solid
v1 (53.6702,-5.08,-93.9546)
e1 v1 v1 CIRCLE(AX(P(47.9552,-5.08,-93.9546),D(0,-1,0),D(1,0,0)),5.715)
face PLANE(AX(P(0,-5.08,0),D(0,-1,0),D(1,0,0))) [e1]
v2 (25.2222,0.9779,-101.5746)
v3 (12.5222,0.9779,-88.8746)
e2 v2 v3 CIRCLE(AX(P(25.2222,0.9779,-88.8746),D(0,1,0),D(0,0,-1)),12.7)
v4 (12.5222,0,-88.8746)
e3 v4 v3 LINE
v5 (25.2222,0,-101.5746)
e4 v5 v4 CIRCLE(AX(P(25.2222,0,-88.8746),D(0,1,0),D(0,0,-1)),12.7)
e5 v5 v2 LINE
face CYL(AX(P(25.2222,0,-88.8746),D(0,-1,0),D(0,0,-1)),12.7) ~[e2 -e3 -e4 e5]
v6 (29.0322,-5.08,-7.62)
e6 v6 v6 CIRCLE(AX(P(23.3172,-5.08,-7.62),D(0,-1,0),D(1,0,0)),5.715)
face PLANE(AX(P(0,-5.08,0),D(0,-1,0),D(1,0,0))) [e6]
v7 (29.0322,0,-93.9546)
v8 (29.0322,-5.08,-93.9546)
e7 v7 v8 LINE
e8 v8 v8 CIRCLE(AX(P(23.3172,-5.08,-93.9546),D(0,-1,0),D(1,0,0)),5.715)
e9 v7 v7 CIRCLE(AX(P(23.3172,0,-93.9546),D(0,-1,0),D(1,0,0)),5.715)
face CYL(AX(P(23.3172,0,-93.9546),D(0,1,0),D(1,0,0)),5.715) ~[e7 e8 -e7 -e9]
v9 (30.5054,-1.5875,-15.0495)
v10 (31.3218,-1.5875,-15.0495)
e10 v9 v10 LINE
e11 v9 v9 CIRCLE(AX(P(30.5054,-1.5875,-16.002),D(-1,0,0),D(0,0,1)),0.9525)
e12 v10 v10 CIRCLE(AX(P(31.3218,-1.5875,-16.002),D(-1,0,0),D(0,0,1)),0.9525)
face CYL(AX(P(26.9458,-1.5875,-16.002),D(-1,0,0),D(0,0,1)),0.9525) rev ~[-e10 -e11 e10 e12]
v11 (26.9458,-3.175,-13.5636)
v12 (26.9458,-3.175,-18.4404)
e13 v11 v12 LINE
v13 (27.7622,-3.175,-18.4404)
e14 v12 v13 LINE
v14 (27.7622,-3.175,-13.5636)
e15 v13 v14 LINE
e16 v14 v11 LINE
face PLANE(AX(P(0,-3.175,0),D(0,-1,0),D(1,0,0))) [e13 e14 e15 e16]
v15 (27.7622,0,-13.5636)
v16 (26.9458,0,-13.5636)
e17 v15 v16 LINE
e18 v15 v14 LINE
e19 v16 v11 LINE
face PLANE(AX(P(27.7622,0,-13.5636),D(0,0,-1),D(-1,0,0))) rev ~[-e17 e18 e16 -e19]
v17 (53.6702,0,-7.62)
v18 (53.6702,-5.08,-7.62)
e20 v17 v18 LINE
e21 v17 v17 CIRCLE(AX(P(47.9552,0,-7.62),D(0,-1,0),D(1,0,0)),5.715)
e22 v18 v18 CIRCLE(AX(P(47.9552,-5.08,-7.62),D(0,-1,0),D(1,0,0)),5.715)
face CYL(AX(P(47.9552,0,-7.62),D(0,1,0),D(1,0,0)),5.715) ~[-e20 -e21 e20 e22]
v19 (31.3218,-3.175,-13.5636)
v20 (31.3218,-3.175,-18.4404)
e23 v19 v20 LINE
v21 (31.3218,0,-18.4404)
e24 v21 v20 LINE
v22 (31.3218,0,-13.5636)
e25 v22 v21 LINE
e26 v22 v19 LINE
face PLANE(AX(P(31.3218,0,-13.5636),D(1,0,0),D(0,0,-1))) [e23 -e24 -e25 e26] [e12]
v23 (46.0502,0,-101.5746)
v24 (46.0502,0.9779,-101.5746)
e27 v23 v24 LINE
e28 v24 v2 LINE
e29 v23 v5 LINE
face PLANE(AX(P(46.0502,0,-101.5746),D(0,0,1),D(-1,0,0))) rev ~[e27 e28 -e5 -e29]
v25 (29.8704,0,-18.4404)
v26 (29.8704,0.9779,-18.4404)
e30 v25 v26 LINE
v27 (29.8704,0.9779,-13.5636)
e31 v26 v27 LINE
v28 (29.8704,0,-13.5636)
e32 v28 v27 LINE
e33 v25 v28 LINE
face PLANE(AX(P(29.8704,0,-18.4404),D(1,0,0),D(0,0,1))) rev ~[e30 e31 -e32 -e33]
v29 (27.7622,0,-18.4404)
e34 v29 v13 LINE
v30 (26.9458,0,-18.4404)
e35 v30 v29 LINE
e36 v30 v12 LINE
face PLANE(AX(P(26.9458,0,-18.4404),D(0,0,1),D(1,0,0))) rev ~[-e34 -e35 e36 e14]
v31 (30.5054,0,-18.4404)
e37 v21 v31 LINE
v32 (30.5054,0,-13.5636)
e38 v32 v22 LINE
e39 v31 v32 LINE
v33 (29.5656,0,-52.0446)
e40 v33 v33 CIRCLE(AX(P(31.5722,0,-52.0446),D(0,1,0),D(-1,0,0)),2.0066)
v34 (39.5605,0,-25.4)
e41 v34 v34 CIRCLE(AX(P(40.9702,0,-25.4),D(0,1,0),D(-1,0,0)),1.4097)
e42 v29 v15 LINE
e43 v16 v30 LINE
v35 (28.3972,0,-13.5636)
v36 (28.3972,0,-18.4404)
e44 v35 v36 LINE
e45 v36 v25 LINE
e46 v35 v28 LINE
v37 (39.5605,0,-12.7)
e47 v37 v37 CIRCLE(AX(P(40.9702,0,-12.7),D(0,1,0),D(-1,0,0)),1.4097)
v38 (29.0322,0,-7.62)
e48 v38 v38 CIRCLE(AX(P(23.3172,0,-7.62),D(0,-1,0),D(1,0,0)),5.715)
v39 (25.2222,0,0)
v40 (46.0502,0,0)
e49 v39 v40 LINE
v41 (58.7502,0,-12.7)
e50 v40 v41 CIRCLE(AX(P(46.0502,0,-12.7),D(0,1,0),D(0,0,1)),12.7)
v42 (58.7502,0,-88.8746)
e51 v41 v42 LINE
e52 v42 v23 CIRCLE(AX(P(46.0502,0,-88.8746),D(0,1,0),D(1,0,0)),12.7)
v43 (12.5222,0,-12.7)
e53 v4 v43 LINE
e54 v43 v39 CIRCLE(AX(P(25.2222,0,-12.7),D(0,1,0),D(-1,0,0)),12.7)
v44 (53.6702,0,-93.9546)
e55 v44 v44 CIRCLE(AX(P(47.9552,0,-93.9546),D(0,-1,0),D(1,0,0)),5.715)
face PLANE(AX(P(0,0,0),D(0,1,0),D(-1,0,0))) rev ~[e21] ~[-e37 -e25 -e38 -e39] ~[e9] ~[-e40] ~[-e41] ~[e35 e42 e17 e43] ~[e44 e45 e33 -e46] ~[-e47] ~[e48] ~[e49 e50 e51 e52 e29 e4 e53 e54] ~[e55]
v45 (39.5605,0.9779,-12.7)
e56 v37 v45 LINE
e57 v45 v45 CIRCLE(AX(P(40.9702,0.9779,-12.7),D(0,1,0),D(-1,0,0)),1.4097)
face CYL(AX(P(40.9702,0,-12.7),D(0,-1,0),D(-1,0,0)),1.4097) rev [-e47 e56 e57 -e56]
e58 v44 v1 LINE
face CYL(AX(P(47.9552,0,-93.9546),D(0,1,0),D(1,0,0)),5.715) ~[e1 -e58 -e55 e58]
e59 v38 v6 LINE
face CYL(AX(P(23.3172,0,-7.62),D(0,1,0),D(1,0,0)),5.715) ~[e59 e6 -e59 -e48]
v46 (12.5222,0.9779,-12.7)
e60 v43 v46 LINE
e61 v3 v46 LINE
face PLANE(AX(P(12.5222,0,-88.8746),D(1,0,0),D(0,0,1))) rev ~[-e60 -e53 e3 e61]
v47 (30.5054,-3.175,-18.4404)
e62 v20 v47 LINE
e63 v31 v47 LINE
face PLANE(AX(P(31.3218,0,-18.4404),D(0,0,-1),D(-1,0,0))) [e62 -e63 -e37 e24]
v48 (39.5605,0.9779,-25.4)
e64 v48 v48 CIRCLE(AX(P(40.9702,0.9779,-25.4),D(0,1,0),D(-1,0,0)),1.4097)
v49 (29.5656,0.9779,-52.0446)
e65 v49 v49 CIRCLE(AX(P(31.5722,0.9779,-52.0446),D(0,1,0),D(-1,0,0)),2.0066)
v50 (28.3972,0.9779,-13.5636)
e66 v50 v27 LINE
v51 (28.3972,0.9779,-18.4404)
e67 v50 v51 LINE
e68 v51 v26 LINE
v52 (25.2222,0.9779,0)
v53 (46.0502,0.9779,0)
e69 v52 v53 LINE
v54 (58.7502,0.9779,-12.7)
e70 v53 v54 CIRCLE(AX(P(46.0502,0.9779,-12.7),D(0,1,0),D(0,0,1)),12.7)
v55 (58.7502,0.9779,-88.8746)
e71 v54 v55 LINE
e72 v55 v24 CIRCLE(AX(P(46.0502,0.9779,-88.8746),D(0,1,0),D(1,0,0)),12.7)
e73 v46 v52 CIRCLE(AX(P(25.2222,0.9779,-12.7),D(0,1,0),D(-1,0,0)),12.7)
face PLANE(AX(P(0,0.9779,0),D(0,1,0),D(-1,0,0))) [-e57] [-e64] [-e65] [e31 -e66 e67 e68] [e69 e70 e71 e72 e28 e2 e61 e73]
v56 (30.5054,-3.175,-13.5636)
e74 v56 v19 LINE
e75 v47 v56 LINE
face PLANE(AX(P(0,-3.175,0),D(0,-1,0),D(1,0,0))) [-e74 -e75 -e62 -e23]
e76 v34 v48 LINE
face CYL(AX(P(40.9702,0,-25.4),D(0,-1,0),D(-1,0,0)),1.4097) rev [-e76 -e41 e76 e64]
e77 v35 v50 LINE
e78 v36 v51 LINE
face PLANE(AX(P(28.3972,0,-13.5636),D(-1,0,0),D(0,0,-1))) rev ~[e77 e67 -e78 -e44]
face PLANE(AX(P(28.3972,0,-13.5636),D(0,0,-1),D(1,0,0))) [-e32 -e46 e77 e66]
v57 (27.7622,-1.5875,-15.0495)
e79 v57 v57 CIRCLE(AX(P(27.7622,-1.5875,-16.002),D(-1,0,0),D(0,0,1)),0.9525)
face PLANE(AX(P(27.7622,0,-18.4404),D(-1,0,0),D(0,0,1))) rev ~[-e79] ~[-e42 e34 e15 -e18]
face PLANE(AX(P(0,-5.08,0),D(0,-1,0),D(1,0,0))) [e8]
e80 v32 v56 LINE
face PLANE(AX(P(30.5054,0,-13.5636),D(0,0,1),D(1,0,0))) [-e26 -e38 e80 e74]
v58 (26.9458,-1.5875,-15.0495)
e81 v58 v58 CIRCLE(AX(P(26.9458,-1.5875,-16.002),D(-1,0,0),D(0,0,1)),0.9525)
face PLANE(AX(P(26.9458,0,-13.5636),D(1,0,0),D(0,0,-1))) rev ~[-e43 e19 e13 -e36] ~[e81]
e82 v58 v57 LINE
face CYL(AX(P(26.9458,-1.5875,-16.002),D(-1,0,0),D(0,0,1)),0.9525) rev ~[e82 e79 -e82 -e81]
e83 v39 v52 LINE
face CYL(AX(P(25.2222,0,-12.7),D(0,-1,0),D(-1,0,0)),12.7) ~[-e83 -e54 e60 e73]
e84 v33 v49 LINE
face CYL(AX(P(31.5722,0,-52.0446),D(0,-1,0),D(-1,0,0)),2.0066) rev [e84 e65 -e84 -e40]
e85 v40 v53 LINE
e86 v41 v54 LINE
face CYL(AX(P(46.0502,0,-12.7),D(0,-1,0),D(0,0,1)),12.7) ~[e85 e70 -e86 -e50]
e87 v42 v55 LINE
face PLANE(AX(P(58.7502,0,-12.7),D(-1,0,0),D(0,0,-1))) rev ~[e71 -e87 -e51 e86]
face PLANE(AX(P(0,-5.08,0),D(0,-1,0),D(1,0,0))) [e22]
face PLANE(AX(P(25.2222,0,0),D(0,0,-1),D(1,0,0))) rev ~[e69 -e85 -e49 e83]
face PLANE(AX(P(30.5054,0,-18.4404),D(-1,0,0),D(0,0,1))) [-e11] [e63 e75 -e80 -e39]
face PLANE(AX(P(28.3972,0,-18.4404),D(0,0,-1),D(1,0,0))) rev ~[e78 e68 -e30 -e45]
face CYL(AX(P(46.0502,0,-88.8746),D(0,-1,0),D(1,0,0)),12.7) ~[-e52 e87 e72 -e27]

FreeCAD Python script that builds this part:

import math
import FreeCAD as App
import Part
import Sketcher
from FreeCAD import Vector
Q = App.Units.Quantity


def add_polygon(sketch, points):
    """Adds a closed chain of lines whose ends are joined by coincident constraints."""
    first, n = sketch.GeometryCount, len(points)
    for a, b in zip(points, points[1:] + points[:1]):
        sketch.addGeometry(Part.LineSegment(App.Vector(*a, 0), App.Vector(*b, 0)), False)
    for i in range(n):
        sketch.addConstraint(Sketcher.Constraint("Coincident", first + i, 2, first + (i + 1) % n, 1))

doc = App.newDocument("Part")
body = doc.addObject("PartDesign::Body", "Body")

# Sketch on XZ plane
sketch1 = body.newObject("Sketcher::SketchObject", "Sketch")
sketch1.AttachmentSupport = (doc.getObject("XZ_Plane"), [""])
sketch1.MapMode = "FlatFace"
sketch1.addGeometry(Part.ArcOfCircle(Part.Circle(Vector(25.2, -12.7, 0), Vector(0, 0, 1), 12.7), math.radians(90), math.radians(180)), False)  # 0
sketch1.addGeometry(Part.LineSegment(Vector(25.2, 0, 0), Vector(46.1, 0, 0)), False)  # 1
sketch1.addGeometry(Part.ArcOfCircle(Part.Circle(Vector(46.1, -12.7, 0), Vector(0, 0, 1), 12.7), math.radians(0), math.radians(90)), False)  # 2
sketch1.addGeometry(Part.LineSegment(Vector(58.8, -12.7, 0), Vector(58.8, -88.9, 0)), False)  # 3
sketch1.addGeometry(Part.ArcOfCircle(Part.Circle(Vector(46.1, -88.9, 0), Vector(0, 0, 1), 12.7), math.radians(-90), math.radians(0)), False)  # 4
sketch1.addGeometry(Part.LineSegment(Vector(46.1, -101.6, 0), Vector(25.2, -101.6, 0)), False)  # 5
sketch1.addGeometry(Part.ArcOfCircle(Part.Circle(Vector(25.2, -88.9, 0), Vector(0, 0, 1), 12.7), math.radians(180), math.radians(270)), False)  # 6
sketch1.addGeometry(Part.LineSegment(Vector(12.5, -88.9, 0), Vector(12.5, -12.7, 0)), False)  # 7
sketch1.addGeometry(Part.Circle(Vector(31.6, -52, 0), Vector(0, 0, 1), 2), False)  # 8
sketch1.addGeometry(Part.Circle(Vector(41, -25.4, 0), Vector(0, 0, 1), 1.4), False)  # 9
sketch1.addGeometry(Part.Circle(Vector(41, -12.7, 0), Vector(0, 0, 1), 1.4), False)  # 10
add_polygon(sketch1, [(29.9, -13.6), (28.4, -13.6), (28.4, -18.4), (29.9, -18.4)])  # lines 11-14
sketch1.addConstraint([
    Sketcher.Constraint("Tangent", 0, 1, 1, 1),
    Sketcher.Constraint("Tangent", 1, 2, 2, 2),
    Sketcher.Constraint("Tangent", 2, 1, 3, 1),
    Sketcher.Constraint("Tangent", 3, 2, 4, 2),
    Sketcher.Constraint("Tangent", 4, 1, 5, 1),
    Sketcher.Constraint("Tangent", 5, 2, 6, 2),
    Sketcher.Constraint("Tangent", 6, 1, 7, 1),
    Sketcher.Constraint("Tangent", 7, 2, 0, 2),
    Sketcher.Constraint("Horizontal", 1),
    Sketcher.Constraint("Vertical", 3),
    Sketcher.Constraint("Horizontal", 5),
    Sketcher.Constraint("Vertical", 7),
    Sketcher.Constraint("Horizontal", 11),
    Sketcher.Constraint("Vertical", 12),
    Sketcher.Constraint("Horizontal", 13),
    Sketcher.Constraint("Vertical", 14),
    Sketcher.Constraint("Equal", 0, 2),
    Sketcher.Constraint("Equal", 2, 4),
    Sketcher.Constraint("Equal", 4, 6),
    Sketcher.Constraint("Equal", 9, 10),
    Sketcher.Constraint("PointOnObject", 0, 1, -1),
    Sketcher.Constraint("Horizontal", 2, 3, 10, 3),
    Sketcher.Constraint("Vertical", 9, 3, 10, 3),
    Sketcher.Constraint("Radius", 0, Q("0.5 in")),
    Sketcher.Constraint("Diameter", 8, Q("0.158 in")),
    Sketcher.Constraint("Diameter", 9, Q("0.111 in")),
    Sketcher.Constraint("DistanceY", 9, 3, 2, 3, Q("0.5 in")),
    Sketcher.Constraint("DistanceX", 10, 3, 2, 1, Q("0.7 in")),
    Sketcher.Constraint("DistanceX", 11, 2, 11, 1, Q("0.058 in")),
    Sketcher.Constraint("DistanceY", 12, 2, 12, 1, Q("0.192 in")),
    Sketcher.Constraint("DistanceY", 4, 1, 8, 3, Q("1.95 in")),
    Sketcher.Constraint("DistanceX", 6, 1, 8, 3, Q("0.75 in")),
    Sketcher.Constraint("DistanceY", 4, 1, -1, 1, Q("3.999 in")),
    Sketcher.Constraint("DistanceY", 11, 2, -1, 1, Q("0.534 in")),
    Sketcher.Constraint("DistanceX", 7, 2, 11, 2, Q("0.625 in")),
    Sketcher.Constraint("DistanceX", 1, 1, 1, 2, Q("0.82 in")),
    Sketcher.Constraint("DistanceX", -1, 1, 0, 3, Q("0.993 in")),
])
pad1 = body.newObject("PartDesign::Pad", "Pad")
pad1.Profile = sketch1
pad1.Length = Q("0.0385 in")
pad1.Reversed = True

# Sketch on XZ plane
sketch2 = body.newObject("Sketcher::SketchObject", "Sketch001")
sketch2.AttachmentSupport = (doc.getObject("XZ_Plane"), [""])
sketch2.MapMode = "FlatFace"
sketch2.addGeometry([
    Part.Circle(Vector(48, -8, 0), Vector(0, 0, 1), 6),
    Part.Circle(Vector(23, -8, 0), Vector(0, 0, 1), 6),
    Part.Circle(Vector(48, -94, 0), Vector(0, 0, 1), 6),
    Part.Circle(Vector(23, -94, 0), Vector(0, 0, 1), 6),
], False)
sketch2.addConstraint([
    Sketcher.Constraint("Equal", 0, 1),
    Sketcher.Constraint("Equal", 1, 2),
    Sketcher.Constraint("Equal", 2, 3),
    Sketcher.Constraint("Horizontal", 0, 3, 1, 3),
    Sketcher.Constraint("Horizontal", 2, 3, 3, 3),
    Sketcher.Constraint("Vertical", 0, 3, 2, 3),
    Sketcher.Constraint("Vertical", 1, 3, 3, 3),
    Sketcher.Constraint("Diameter", 0, Q("0.45 in")),
    Sketcher.Constraint("DistanceY", 0, 3, -1, 1, Q("0.3 in")),
    Sketcher.Constraint("DistanceX", 1, 3, 0, 3, Q("0.97 in")),
    Sketcher.Constraint("DistanceX", -1, 1, 0, 3, Q("1.888 in")),
    Sketcher.Constraint("DistanceY", 2, 3, -1, 1, Q("3.699 in")),
])
pad2 = body.newObject("PartDesign::Pad", "Pad001")
pad2.Profile = sketch2
pad2.Length = Q("0.2 in")

# Sketch on XZ plane
sketch3 = body.newObject("Sketcher::SketchObject", "Sketch002")
sketch3.AttachmentSupport = (doc.getObject("XZ_Plane"), [""])
sketch3.MapMode = "FlatFace"
add_polygon(sketch3, [(31.3, -13.6), (30.5, -13.6), (30.5, -18.4), (31.3, -18.4)])  # lines 0-3
add_polygon(sketch3, [(27.8, -18.4), (27.8, -13.6), (26.9, -13.6), (26.9, -18.4)])  # lines 4-7
sketch3.addConstraint([
    Sketcher.Constraint("Horizontal", 0),
    Sketcher.Constraint("Vertical", 1),
    Sketcher.Constraint("Horizontal", 2),
    Sketcher.Constraint("Vertical", 3),
    Sketcher.Constraint("Vertical", 4),
    Sketcher.Constraint("Horizontal", 5),
    Sketcher.Constraint("Vertical", 6),
    Sketcher.Constraint("Horizontal", 7),
    Sketcher.Constraint("Horizontal", 3, 2, 4, 2),
    Sketcher.Constraint("Horizontal", 2, 2, 6, 2),
    Sketcher.Constraint("Equal", 2, 5),
    Sketcher.Constraint("DistanceY", 1, 2, 1, 1, Q("0.192 in")),
    Sketcher.Constraint("DistanceX", -1, 1, 0, 2, Q("1.201 in")),
    Sketcher.Constraint("DistanceY", 0, 2, -1, 1, Q("0.534 in")),
    Sketcher.Constraint("DistanceX", -1, 1, 4, 2, Q("1.093 in")),
    Sketcher.Constraint("DistanceX", 0, 2, 0, 1, Q("0.8164 mm")),
])
pad3 = body.newObject("PartDesign::Pad", "Pad002")
pad3.Profile = sketch3
pad3.Length = Q("0.125 in")

# Sketch on YZ plane
sketch4 = body.newObject("Sketcher::SketchObject", "Sketch003")
sketch4.AttachmentSupport = (doc.getObject("YZ_Plane"), [""])
sketch4.MapMode = "FlatFace"
sketch4.AttachmentOffset = App.Placement(Vector(0, 0, 26.9458), App.Rotation())
sketch4.addGeometry(Part.Circle(Vector(-1.6, -16, 0), Vector(0, 0, 1), 1), False)
sketch4.addConstraint([
    Sketcher.Constraint("Diameter", 0, Q("0.075 in")),
    Sketcher.Constraint("DistanceX", 0, 3, -1, 1, Q("0.0625 in")),
    Sketcher.Constraint("DistanceY", 0, 3, -1, 1, Q("0.63 in")),
])
pocket1 = body.newObject("PartDesign::Pocket", "Pocket")
pocket1.Profile = sketch4
pocket1.Type = "ThroughAll"
pocket1.Reversed = True

doc.recompute()
